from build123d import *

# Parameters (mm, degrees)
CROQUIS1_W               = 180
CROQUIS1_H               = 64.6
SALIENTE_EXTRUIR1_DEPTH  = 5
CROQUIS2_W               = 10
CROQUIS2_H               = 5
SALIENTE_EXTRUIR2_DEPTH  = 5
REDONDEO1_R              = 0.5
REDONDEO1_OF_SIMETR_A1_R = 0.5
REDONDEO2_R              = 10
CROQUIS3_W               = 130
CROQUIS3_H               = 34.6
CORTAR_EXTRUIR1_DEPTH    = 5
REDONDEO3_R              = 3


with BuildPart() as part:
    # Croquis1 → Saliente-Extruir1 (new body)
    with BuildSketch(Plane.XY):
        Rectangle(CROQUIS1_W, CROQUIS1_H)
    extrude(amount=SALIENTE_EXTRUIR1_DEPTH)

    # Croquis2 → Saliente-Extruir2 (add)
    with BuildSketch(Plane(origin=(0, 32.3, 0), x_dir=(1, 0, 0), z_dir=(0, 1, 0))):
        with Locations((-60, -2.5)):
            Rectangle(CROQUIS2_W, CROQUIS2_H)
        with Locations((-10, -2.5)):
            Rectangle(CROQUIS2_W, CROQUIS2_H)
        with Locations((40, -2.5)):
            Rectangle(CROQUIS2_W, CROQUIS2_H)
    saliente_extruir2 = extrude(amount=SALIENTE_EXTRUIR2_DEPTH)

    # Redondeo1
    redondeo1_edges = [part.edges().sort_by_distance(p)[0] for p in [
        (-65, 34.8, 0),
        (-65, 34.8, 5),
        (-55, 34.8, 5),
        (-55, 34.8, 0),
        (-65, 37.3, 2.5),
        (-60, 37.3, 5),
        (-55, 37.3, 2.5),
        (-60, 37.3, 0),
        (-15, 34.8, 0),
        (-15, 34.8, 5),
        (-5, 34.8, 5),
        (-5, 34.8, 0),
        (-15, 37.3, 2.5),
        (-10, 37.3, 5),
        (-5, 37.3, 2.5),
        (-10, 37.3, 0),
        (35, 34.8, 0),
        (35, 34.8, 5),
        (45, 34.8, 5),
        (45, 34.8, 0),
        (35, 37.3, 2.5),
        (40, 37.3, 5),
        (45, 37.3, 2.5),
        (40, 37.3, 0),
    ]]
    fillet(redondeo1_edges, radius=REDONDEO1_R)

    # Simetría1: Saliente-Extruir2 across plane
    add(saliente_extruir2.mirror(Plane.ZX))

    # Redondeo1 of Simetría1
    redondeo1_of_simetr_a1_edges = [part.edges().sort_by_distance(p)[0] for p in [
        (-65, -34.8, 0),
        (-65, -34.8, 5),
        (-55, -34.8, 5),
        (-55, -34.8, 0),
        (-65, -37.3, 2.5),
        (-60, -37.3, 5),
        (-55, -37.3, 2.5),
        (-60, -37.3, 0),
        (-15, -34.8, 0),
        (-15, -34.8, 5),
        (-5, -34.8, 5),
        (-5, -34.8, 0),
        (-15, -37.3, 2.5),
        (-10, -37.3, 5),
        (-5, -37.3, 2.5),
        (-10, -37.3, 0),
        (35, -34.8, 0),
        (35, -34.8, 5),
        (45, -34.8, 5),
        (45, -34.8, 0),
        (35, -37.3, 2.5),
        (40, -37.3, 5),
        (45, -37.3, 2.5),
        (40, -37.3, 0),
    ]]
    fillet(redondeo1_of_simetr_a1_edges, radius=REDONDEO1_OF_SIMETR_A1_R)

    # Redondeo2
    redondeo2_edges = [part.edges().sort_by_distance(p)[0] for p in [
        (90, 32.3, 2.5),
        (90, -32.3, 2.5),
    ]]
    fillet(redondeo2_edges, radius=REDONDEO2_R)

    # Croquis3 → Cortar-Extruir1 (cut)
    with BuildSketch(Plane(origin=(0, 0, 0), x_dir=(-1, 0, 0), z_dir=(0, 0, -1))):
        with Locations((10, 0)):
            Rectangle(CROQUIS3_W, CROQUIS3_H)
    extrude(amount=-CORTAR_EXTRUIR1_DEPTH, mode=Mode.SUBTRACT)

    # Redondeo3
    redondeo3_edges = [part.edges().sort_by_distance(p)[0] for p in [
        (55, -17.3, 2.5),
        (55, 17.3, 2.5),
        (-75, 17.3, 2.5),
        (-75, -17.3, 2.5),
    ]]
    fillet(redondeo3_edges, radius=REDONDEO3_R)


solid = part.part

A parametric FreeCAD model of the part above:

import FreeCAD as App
import Part
import Sketcher

V = App.Vector
Q = App.Units.Quantity


def edges_at(feature, points):
    """Names of the edges that pass closest to the given points."""
    edges = feature.Shape.Edges
    near = lambda p: min(range(len(edges)), key=lambda i: edges[i].distToShape(Part.Vertex(*p))[0])
    return sorted({f"Edge{near(p) + 1}" for p in points})


def add_polygon(sketch, points):
    """Adds a closed chain of lines whose ends are joined by coincident constraints."""
    first, n = sketch.GeometryCount, len(points)
    for a, b in zip(points, points[1:] + points[:1]):
        sketch.addGeometry(Part.LineSegment(App.Vector(*a, 0), App.Vector(*b, 0)), False)
    for i in range(n):
        sketch.addConstraint(Sketcher.Constraint("Coincident", first + i, 2, first + (i + 1) % n, 1))

doc = App.newDocument("Part")
body = doc.addObject("PartDesign::Body", "Body")

# Sketch on XY plane
sketch1 = body.newObject("Sketcher::SketchObject", "Sketch")
sketch1.AttachmentSupport = (doc.getObject("XY_Plane"), [""])
sketch1.MapMode = "FlatFace"
add_polygon(sketch1, [(-90, 32), (-90, -32), (90, -32), (90, 32)])  # lines 0-3
sketch1.addConstraint(Sketcher.Constraint("Vertical", 0))
sketch1.addConstraint(Sketcher.Constraint("Horizontal", 1))
sketch1.addConstraint(Sketcher.Constraint("Vertical", 2))
sketch1.addConstraint(Sketcher.Constraint("Horizontal", 3))
sketch1.addConstraint(Sketcher.Constraint("Symmetric", 0, 2, 2, 2, -1, 1))
sketch1.addConstraint(Sketcher.Constraint("DistanceX", 1, 1, 1, 2, Q("180 mm")))
sketch1.addConstraint(Sketcher.Constraint("DistanceY", 0, 2, 0, 1, Q("64.6 mm")))
pad1 = body.newObject("PartDesign::Pad", "Pad")
pad1.Profile = sketch1
pad1.Length = 5

# Sketch on XZ plane
sketch2 = body.newObject("Sketcher::SketchObject", "Sketch001")
sketch2.AttachmentSupport = (doc.getObject("XZ_Plane"), [""])
sketch2.MapMode = "FlatFace"
sketch2.AttachmentOffset = App.Placement(V(0, 0, -32.3), App.Rotation())
add_polygon(sketch2, [(-65, 0), (-65, 5), (-55, 5), (-55, 0)])  # lines 0-3
add_polygon(sketch2, [(-15, 0), (-15, 5), (-5, 5), (-5, 0)])  # lines 4-7
add_polygon(sketch2, [(35, 0), (35, 5), (45, 5), (45, 0)])  # lines 8-11
sketch2.addConstraint(Sketcher.Constraint("Vertical", 0))
sketch2.addConstraint(Sketcher.Constraint("Horizontal", 1))
sketch2.addConstraint(Sketcher.Constraint("Vertical", 2))
sketch2.addConstraint(Sketcher.Constraint("Horizontal", 3))
sketch2.addConstraint(Sketcher.Constraint("Vertical", 4))
sketch2.addConstraint(Sketcher.Constraint("Horizontal", 5))
sketch2.addConstraint(Sketcher.Constraint("Vertical", 6))
sketch2.addConstraint(Sketcher.Constraint("Horizontal", 7))
sketch2.addConstraint(Sketcher.Constraint("Vertical", 8))
sketch2.addConstraint(Sketcher.Constraint("Horizontal", 9))
sketch2.addConstraint(Sketcher.Constraint("Vertical", 10))
sketch2.addConstraint(Sketcher.Constraint("Horizontal", 11))
sketch2.addConstraint(Sketcher.Constraint("PointOnObject", 2, 2, -1))
sketch2.addConstraint(Sketcher.Constraint("PointOnObject", 6, 2, -1))
sketch2.addConstraint(Sketcher.Constraint("PointOnObject", 10, 2, -1))
sketch2.addConstraint(Sketcher.Constraint("Horizontal", 1, 2, 4, 2))
sketch2.addConstraint(Sketcher.Constraint("Horizontal", 5, 2, 8, 2))
sketch2.addConstraint(Sketcher.Constraint("Equal", 3, 5))
sketch2.addConstraint(Sketcher.Constraint("Equal", 7, 9))
sketch2.addConstraint(Sketcher.Constraint("DistanceX", 1, 1, 1, 2, Q("10 mm")))
sketch2.addConstraint(Sketcher.Constraint("DistanceY", 0, 1, 0, 2, Q("5 mm")))
sketch2.addConstraint(Sketcher.Constraint("DistanceX", 0, 2, -1, 1, Q("65 mm")))
sketch2.addConstraint(Sketcher.Constraint("DistanceX", 4, 2, -1, 1, Q("15 mm")))
sketch2.addConstraint(Sketcher.Constraint("DistanceX", -1, 1, 8, 2, Q("35 mm")))
pad2 = body.newObject("PartDesign::Pad", "Pad001")
pad2.Profile = sketch2
pad2.Length = 5
pad2.Reversed = True
doc.recompute()

fillet = body.newObject("PartDesign::Fillet", "Fillet")
fillet.Base = (pad2, edges_at(pad2, [
    (-65, 34.8, 0),
    (-65, 34.8, 5),
    (-55, 34.8, 5),
    (-55, 34.8, 0),
    (-65, 37.3, 2.5),
    (-60, 37.3, 5),
    (-55, 37.3, 2.5),
    (-60, 37.3, 0),
    (-15, 34.8, 0),
    (-15, 34.8, 5),
    (-5, 34.8, 5),
    (-5, 34.8, 0),
    (-15, 37.3, 2.5),
    (-10, 37.3, 5),
    (-5, 37.3, 2.5),
    (-10, 37.3, 0),
    (35, 34.8, 0),
    (35, 34.8, 5),
    (45, 34.8, 5),
    (45, 34.8, 0),
    (35, 37.3, 2.5),
    (40, 37.3, 5),
    (45, 37.3, 2.5),
    (40, 37.3, 0),
]))
fillet.Radius = 0.5
doc.recompute()

mirrored = body.newObject("PartDesign::Mirrored", "Mirrored")
mirrored.Originals = [pad2]
mirrored.MirrorPlane = (doc.getObject("XZ_Plane"), [""])
body.Tip = mirrored
doc.recompute()

fillet2 = body.newObject("PartDesign::Fillet", "Fillet001")
fillet2.Base = (mirrored, edges_at(mirrored, [
    (-65, -34.8, 0),
    (-65, -34.8, 5),
    (-55, -34.8, 5),
    (-55, -34.8, 0),
    (-65, -37.3, 2.5),
    (-60, -37.3, 5),
    (-55, -37.3, 2.5),
    (-60, -37.3, 0),
    (-15, -34.8, 0),
    (-15, -34.8, 5),
    (-5, -34.8, 5),
    (-5, -34.8, 0),
    (-15, -37.3, 2.5),
    (-10, -37.3, 5),
    (-5, -37.3, 2.5),
    (-10, -37.3, 0),
    (35, -34.8, 0),
    (35, -34.8, 5),
    (45, -34.8, 5),
    (45, -34.8, 0),
    (35, -37.3, 2.5),
    (40, -37.3, 5),
    (45, -37.3, 2.5),
    (40, -37.3, 0),
]))
fillet2.Radius = 0.5
doc.recompute()

fillet3 = body.newObject("PartDesign::Fillet", "Fillet002")
fillet3.Base = (fillet2, edges_at(fillet2, [(90, 32.3, 2.5), (90, -32.3, 2.5)]))
fillet3.Radius = 10

# Sketch on XY plane
sketch3 = body.newObject("Sketcher::SketchObject", "Sketch002")
sketch3.AttachmentSupport = (doc.getObject("XY_Plane"), [""])
sketch3.MapMode = "FlatFace"
add_polygon(sketch3, [(55, 17), (55, -17), (-75, -17), (-75, 17)])  # lines 0-3
sketch3.addConstraint(Sketcher.Constraint("Vertical", 0))
sketch3.addConstraint(Sketcher.Constraint("Horizontal", 1))
sketch3.addConstraint(Sketcher.Constraint("Vertical", 2))
sketch3.addConstraint(Sketcher.Constraint("Horizontal", 3))
sketch3.addConstraint(Sketcher.Constraint("DistanceX", 1, 2, 1, 1, Q("130 mm")))
sketch3.addConstraint(Sketcher.Constraint("DistanceY", 0, 2, 0, 1, Q("34.6 mm")))
sketch3.addConstraint(Sketcher.Constraint("DistanceX", -1, 1, 0, 2, Q("55 mm")))
sketch3.addConstraint(Sketcher.Constraint("DistanceY", 0, 2, -1, 1, Q("17.3 mm")))
pocket1 = body.newObject("PartDesign::Pocket", "Pocket")
pocket1.Profile = sketch3
pocket1.Length = 5
pocket1.Reversed = True
doc.recompute()

fillet4 = body.newObject("PartDesign::Fillet", "Fillet003")
fillet4.Base = (pocket1, edges_at(pocket1, [
    (55, -17.3, 2.5),
    (55, 17.3, 2.5),
    (-75, 17.3, 2.5),
    (-75, -17.3, 2.5),
]))
fillet4.Radius = 3

doc.recompute()
